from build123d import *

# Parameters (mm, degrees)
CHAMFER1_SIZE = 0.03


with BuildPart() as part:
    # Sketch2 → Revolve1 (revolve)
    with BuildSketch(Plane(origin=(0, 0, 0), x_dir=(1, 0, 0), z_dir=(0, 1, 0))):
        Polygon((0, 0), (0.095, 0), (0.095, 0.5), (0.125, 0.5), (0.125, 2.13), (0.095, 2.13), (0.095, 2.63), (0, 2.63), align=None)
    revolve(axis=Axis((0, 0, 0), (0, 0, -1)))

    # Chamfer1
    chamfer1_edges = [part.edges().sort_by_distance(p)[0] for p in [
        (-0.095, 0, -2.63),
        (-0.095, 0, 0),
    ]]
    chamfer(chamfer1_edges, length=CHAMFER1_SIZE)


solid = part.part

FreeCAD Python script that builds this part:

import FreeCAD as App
import Part
import Sketcher


def edges_at(feature, points):
    """Names of the edges that pass closest to the given points."""
    edges = feature.Shape.Edges
    near = lambda p: min(range(len(edges)), key=lambda i: edges[i].distToShape(Part.Vertex(*p))[0])
    return sorted({f"Edge{near(p) + 1}" for p in points})

doc = App.newDocument("Part")
body = doc.addObject("PartDesign::Body", "Body")

# Sketch on XZ plane
sketch1 = body.newObject("Sketcher::SketchObject", "Sketch")
sketch1.AttachmentSupport = (doc.getObject("XZ_Plane"), [""])
sketch1.MapMode = "FlatFace"
sketch1.addGeometry(Part.LineSegment(App.Vector(0, 0, 0), App.Vector(0.095, 0, 0)), False)
sketch1.addGeometry(Part.LineSegment(App.Vector(0.095, 0, 0), App.Vector(0.095, -0.5, 0)), False)
sketch1.addGeometry(Part.LineSegment(App.Vector(0.095, -0.5, 0), App.Vector(0.125, -0.5, 0)), False)
sketch1.addGeometry(Part.LineSegment(App.Vector(0.125, -0.5, 0), App.Vector(0.125, -2.13, 0)), False)
sketch1.addGeometry(Part.LineSegment(App.Vector(0.125, -2.13, 0), App.Vector(0.095, -2.13, 0)), False)
sketch1.addGeometry(Part.LineSegment(App.Vector(0.095, -2.13, 0), App.Vector(0.095, -2.63, 0)), False)
sketch1.addGeometry(Part.LineSegment(App.Vector(0.095, -2.63, 0), App.Vector(0, -2.63, 0)), False)
sketch1.addGeometry(Part.LineSegment(App.Vector(0, -2.63, 0), App.Vector(0, 0, 0)), False)
sketch1.addConstraint(Sketcher.Constraint("Coincident", 0, 2, 1, 1))
sketch1.addConstraint(Sketcher.Constraint("Coincident", 1, 2, 2, 1))
sketch1.addConstraint(Sketcher.Constraint("Coincident", 2, 2, 3, 1))
sketch1.addConstraint(Sketcher.Constraint("Coincident", 3, 2, 4, 1))
sketch1.addConstraint(Sketcher.Constraint("Coincident", 4, 2, 5, 1))
sketch1.addConstraint(Sketcher.Constraint("Coincident", 5, 2, 6, 1))
sketch1.addConstraint(Sketcher.Constraint("Coincident", 6, 2, 7, 1))
sketch1.addConstraint(Sketcher.Constraint("Coincident", 7, 2, 0, 1))
sketch1.addConstraint(Sketcher.Constraint("Horizontal", 0))
sketch1.addConstraint(Sketcher.Constraint("Vertical", 1))
sketch1.addConstraint(Sketcher.Constraint("Horizontal", 2))
sketch1.addConstraint(Sketcher.Constraint("Vertical", 3))
sketch1.addConstraint(Sketcher.Constraint("Horizontal", 4))
sketch1.addConstraint(Sketcher.Constraint("Vertical", 5))
sketch1.addConstraint(Sketcher.Constraint("Horizontal", 6))
sketch1.addConstraint(Sketcher.Constraint("Vertical", 7))
sketch1.addConstraint(Sketcher.Constraint("Coincident", 7, 2, -1, 1))
sketch1.addConstraint(Sketcher.Constraint("Vertical", 1, 2, 4, 2))
sketch1.addConstraint(Sketcher.Constraint("Equal", 1, 5))
sketch1.addConstraint(Sketcher.Constraint("DistanceY", 1, 2, 1, 1, 0.5))
sketch1.addConstraint(Sketcher.Constraint("DistanceX", 2, 1, 2, 2, 0.03))
sketch1.addConstraint(Sketcher.Constraint("DistanceY", 3, 2, 3, 1, 1.63))
sketch1.addConstraint(Sketcher.Constraint("DistanceX", 0, 1, 0, 2, 0.095))
revolution = body.newObject("PartDesign::Revolution", "Revolution")
revolution.Profile = sketch1
revolution.ReferenceAxis = (sketch1, ["V_Axis"])
revolution.Angle = 360
doc.recompute()

chamfer = body.newObject("PartDesign::Chamfer", "Chamfer")
chamfer.Base = (revolution, edges_at(revolution, [(-0.095, 0, -2.63), (-0.095, 0, 0)]))
chamfer.Size = 0.03

doc.recompute()
